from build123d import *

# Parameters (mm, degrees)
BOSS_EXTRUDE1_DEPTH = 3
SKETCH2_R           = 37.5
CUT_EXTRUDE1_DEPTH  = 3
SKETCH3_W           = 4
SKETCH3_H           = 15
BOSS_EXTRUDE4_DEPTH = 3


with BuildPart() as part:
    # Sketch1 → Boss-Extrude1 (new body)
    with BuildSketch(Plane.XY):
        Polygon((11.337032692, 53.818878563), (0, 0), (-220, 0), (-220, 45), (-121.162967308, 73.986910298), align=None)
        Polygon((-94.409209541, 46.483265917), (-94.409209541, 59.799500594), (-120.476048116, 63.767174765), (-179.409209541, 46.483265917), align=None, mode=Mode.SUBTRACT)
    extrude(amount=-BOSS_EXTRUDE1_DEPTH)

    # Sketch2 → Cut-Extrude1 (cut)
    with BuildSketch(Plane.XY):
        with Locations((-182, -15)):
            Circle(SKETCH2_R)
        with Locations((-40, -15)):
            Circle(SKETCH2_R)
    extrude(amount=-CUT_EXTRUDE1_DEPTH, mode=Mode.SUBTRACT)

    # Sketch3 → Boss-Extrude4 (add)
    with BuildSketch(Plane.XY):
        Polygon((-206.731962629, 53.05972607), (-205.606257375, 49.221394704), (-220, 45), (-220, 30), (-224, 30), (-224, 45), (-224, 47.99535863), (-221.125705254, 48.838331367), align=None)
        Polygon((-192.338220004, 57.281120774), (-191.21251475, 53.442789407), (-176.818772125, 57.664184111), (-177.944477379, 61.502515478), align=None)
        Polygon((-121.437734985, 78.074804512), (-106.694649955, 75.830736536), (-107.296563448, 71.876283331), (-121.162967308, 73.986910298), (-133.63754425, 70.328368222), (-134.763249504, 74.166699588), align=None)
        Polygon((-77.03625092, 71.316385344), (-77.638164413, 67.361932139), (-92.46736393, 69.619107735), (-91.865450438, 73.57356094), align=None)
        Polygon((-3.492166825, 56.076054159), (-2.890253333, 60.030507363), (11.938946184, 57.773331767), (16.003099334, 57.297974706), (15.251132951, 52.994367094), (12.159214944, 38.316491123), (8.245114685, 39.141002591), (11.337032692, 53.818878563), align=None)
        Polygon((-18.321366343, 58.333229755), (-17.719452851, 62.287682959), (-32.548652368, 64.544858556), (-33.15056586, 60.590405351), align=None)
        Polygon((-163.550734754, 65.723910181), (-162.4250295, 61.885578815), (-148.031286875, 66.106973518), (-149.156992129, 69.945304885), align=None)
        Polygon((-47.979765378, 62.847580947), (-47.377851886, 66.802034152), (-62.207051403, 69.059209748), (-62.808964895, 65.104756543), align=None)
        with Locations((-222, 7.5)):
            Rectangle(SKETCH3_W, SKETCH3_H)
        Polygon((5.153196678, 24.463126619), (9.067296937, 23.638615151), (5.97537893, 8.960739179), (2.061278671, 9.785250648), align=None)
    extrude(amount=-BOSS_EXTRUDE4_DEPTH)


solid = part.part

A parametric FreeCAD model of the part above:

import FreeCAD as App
import Part
import Sketcher
from FreeCAD import Vector
Q = App.Units.Quantity

doc = App.newDocument("Part")
body = doc.addObject("PartDesign::Body", "Body")

sketch1 = body.newObject("Sketcher::SketchObject", "Sketch")
sketch1.AttachmentSupport = (doc.getObject("XY_Plane"), [""])
sketch1.MapMode = "FlatFace"
sketch1.addGeometry([
    Part.LineSegment(Vector(0, 0, 0), Vector(11.337033, 53.818879, 0)),
    Part.LineSegment(Vector(11.337033, 53.818879, 0), Vector(-121.162967, 73.98691, 0)),
    Part.LineSegment(Vector(-121.162967, 73.98691, 0), Vector(-220, 45, 0)),
    Part.LineSegment(Vector(-220, 45, 0), Vector(-220, 0, 0)),
    Part.LineSegment(Vector(-220, 0, 0), Vector(0, 0, 0)),
    Part.LineSegment(Vector(-94.40921, 46.483266, 0), Vector(-179.40921, 46.483266, 0)),
    Part.LineSegment(Vector(-179.40921, 46.483266, 0), Vector(-120.476048, 63.767175, 0)),
    Part.LineSegment(Vector(-120.476048, 63.767175, 0), Vector(-94.40921, 59.799501, 0)),
    Part.LineSegment(Vector(-94.40921, 59.799501, 0), Vector(-94.40921, 46.483266, 0)),
], False)
sketch1.addConstraint([
    Sketcher.Constraint("Coincident", 0, 2, 1, 1),
    Sketcher.Constraint("Coincident", 1, 2, 2, 1),
    Sketcher.Constraint("Coincident", 2, 2, 3, 1),
    Sketcher.Constraint("Coincident", 3, 2, 4, 1),
    Sketcher.Constraint("Coincident", 4, 2, 0, 1),
    Sketcher.Constraint("Coincident", 5, 2, 6, 1),
    Sketcher.Constraint("Coincident", 6, 2, 7, 1),
    Sketcher.Constraint("Coincident", 7, 2, 8, 1),
    Sketcher.Constraint("Coincident", 8, 2, 5, 1),
    Sketcher.Constraint("Vertical", 3),
    Sketcher.Constraint("Horizontal", 4),
    Sketcher.Constraint("Horizontal", 5),
    Sketcher.Constraint("Vertical", 8),
    Sketcher.Constraint("Coincident", 4, 2, -1, 1),
    Sketcher.Constraint("Parallel", 2, 6),
    Sketcher.Constraint("Parallel", 1, 7),
    Sketcher.Constraint("DistanceX", 4, 1, 4, 2, Q("220 mm")),
    Sketcher.Constraint("DistanceX", 5, 2, 5, 1, Q("85 mm")),
    Sketcher.Constraint("DistanceY", 3, 2, 3, 1, Q("45 mm")),
    Sketcher.Constraint("Distance", 0, Q("55 mm")),
    Sketcher.Constraint("Distance", 2, Q("103 mm")),
    Sketcher.Constraint("DistanceX", 1, 2, 0, 2, Q("132.5 mm")),
    Sketcher.Constraint("DistanceY", -1, 1, 7, 2, Q("59.799501 mm")),
    Sketcher.Constraint("DistanceY", 8, 2, 8, 1, Q("13.316235 mm")),
    Sketcher.Constraint("DistanceY", -1, 1, 0, 2, Q("53.818879 mm")),
    Sketcher.Constraint("DistanceX", 5, 2, -1, 1, Q("179.40921 mm")),
])
pad1 = body.newObject("PartDesign::Pad", "Pad")
pad1.Profile = sketch1
pad1.Length = 3
pad1.Reversed = True

sketch2 = body.newObject("Sketcher::SketchObject", "Sketch001")
sketch2.AttachmentSupport = (doc.getObject("XY_Plane"), [""])
sketch2.MapMode = "FlatFace"
sketch2.addGeometry([
    Part.Circle(Vector(-182, -15, 0), Vector(0, 0, 1), 37.5),
    Part.Circle(Vector(-40, -15, 0), Vector(0, 0, 1), 37.5),
], False)
sketch2.addConstraint([
    Sketcher.Constraint("Equal", 0, 1),
    Sketcher.Constraint("Horizontal", 0, 3, 1, 3),
    Sketcher.Constraint("Diameter", 0, Q("75 mm")),
    Sketcher.Constraint("DistanceX", 0, 3, -1, 1, Q("182 mm")),
    Sketcher.Constraint("DistanceY", 0, 3, -1, 1, Q("15 mm")),
    Sketcher.Constraint("DistanceX", 1, 3, -1, 1, Q("40 mm")),
])
pocket1 = body.newObject("PartDesign::Pocket", "Pocket")
pocket1.Profile = sketch2
pocket1.Length = 3

sketch3 = body.newObject("Sketcher::SketchObject", "Sketch002")
sketch3.AttachmentSupport = (doc.getObject("XY_Plane"), [""])
sketch3.MapMode = "FlatFace"
sketch3.addGeometry([
    Part.LineSegment(Vector(-205.606257, 49.221395, 0), Vector(-206.731963, 53.059726, 0)),
    Part.LineSegment(Vector(-206.731963, 53.059726, 0), Vector(-221.125705, 48.838331, 0)),
    Part.LineSegment(Vector(-221.125705, 48.838331, 0), Vector(-224, 47.995359, 0)),
    Part.LineSegment(Vector(-224, 47.995359, 0), Vector(-224, 30, 0)),
    Part.LineSegment(Vector(-224, 30, 0), Vector(-220, 30, 0)),
    Part.LineSegment(Vector(-220, 30, 0), Vector(-220, 45, 0)),
    Part.LineSegment(Vector(-220, 45, 0), Vector(-205.606257, 49.221395, 0)),
    Part.LineSegment(Vector(-192.33822, 57.281121, 0), Vector(-191.212515, 53.442789, 0)),
    Part.LineSegment(Vector(-191.212515, 53.442789, 0), Vector(-176.818772, 57.664184, 0)),
    Part.LineSegment(Vector(-176.818772, 57.664184, 0), Vector(-177.944477, 61.502515, 0)),
    Part.LineSegment(Vector(-177.944477, 61.502515, 0), Vector(-192.33822, 57.281121, 0)),
    Part.LineSegment(Vector(-106.69465, 75.830737, 0), Vector(-121.437735, 78.074805, 0)),
    Part.LineSegment(Vector(-121.437735, 78.074805, 0), Vector(-134.76325, 74.1667, 0)),
    Part.LineSegment(Vector(-134.76325, 74.1667, 0), Vector(-133.637544, 70.328368, 0)),
    Part.LineSegment(Vector(-133.637544, 70.328368, 0), Vector(-121.162967, 73.98691, 0)),
    Part.LineSegment(Vector(-121.162967, 73.98691, 0), Vector(-107.296563, 71.876283, 0)),
    Part.LineSegment(Vector(-107.296563, 71.876283, 0), Vector(-106.69465, 75.830737, 0)),
    Part.LineSegment(Vector(-77.638164, 67.361932, 0), Vector(-77.036251, 71.316385, 0)),
    Part.LineSegment(Vector(-77.036251, 71.316385, 0), Vector(-91.86545, 73.573561, 0)),
    Part.LineSegment(Vector(-91.86545, 73.573561, 0), Vector(-92.467364, 69.619108, 0)),
    Part.LineSegment(Vector(-92.467364, 69.619108, 0), Vector(-77.638164, 67.361932, 0)),
    Part.LineSegment(Vector(-2.890253, 60.030507, 0), Vector(-3.492167, 56.076054, 0)),
    Part.LineSegment(Vector(-3.492167, 56.076054, 0), Vector(11.337033, 53.818879, 0)),
    Part.LineSegment(Vector(11.337033, 53.818879, 0), Vector(8.245115, 39.141003, 0)),
    Part.LineSegment(Vector(8.245115, 39.141003, 0), Vector(12.159215, 38.316491, 0)),
    Part.LineSegment(Vector(12.159215, 38.316491, 0), Vector(15.251133, 52.994367, 0)),
    Part.LineSegment(Vector(15.251133, 52.994367, 0), Vector(16.003099, 57.297975, 0)),
    Part.LineSegment(Vector(16.003099, 57.297975, 0), Vector(11.938946, 57.773332, 0)),
    Part.LineSegment(Vector(11.938946, 57.773332, 0), Vector(-2.890253, 60.030507, 0)),
    Part.LineSegment(Vector(-18.321366, 58.33323, 0), Vector(-17.719453, 62.287683, 0)),
    Part.LineSegment(Vector(-17.719453, 62.287683, 0), Vector(-32.548652, 64.544859, 0)),
    Part.LineSegment(Vector(-32.548652, 64.544859, 0), Vector(-33.150566, 60.590405, 0)),
    Part.LineSegment(Vector(-33.150566, 60.590405, 0), Vector(-18.321366, 58.33323, 0)),
    Part.LineSegment(Vector(-163.550735, 65.72391, 0), Vector(-162.425029, 61.885579, 0)),
    Part.LineSegment(Vector(-162.425029, 61.885579, 0), Vector(-148.031287, 66.106974, 0)),
    Part.LineSegment(Vector(-148.031287, 66.106974, 0), Vector(-149.156992, 69.945305, 0)),
    Part.LineSegment(Vector(-149.156992, 69.945305, 0), Vector(-163.550735, 65.72391, 0)),
    Part.LineSegment(Vector(-47.979765, 62.847581, 0), Vector(-47.377852, 66.802034, 0)),
    Part.LineSegment(Vector(-47.377852, 66.802034, 0), Vector(-62.207051, 69.05921, 0)),
    Part.LineSegment(Vector(-62.207051, 69.05921, 0), Vector(-62.808965, 65.104757, 0)),
    Part.LineSegment(Vector(-62.808965, 65.104757, 0), Vector(-47.979765, 62.847581, 0)),
    Part.LineSegment(Vector(-224, 15, 0), Vector(-224, 0, 0)),
    Part.LineSegment(Vector(-224, 0, 0), Vector(-220, 0, 0)),
    Part.LineSegment(Vector(-220, 0, 0), Vector(-220, 15, 0)),
    Part.LineSegment(Vector(-220, 15, 0), Vector(-224, 15, 0)),
    Part.LineSegment(Vector(9.067297, 23.638615, 0), Vector(5.153197, 24.463127, 0)),
    Part.LineSegment(Vector(5.153197, 24.463127, 0), Vector(2.061279, 9.785251, 0)),
    Part.LineSegment(Vector(2.061279, 9.785251, 0), Vector(5.975379, 8.960739, 0)),
    Part.LineSegment(Vector(5.975379, 8.960739, 0), Vector(9.067297, 23.638615, 0)),
], False)
sketch3.addConstraint([
    Sketcher.Constraint("Coincident", 0, 2, 1, 1),
    Sketcher.Constraint("Coincident", 1, 2, 2, 1),
    Sketcher.Constraint("Coincident", 2, 2, 3, 1),
    Sketcher.Constraint("Coincident", 3, 2, 4, 1),
    Sketcher.Constraint("Coincident", 4, 2, 5, 1),
    Sketcher.Constraint("Coincident", 5, 2, 6, 1),
    Sketcher.Constraint("Coincident", 6, 2, 0, 1),
    Sketcher.Constraint("Coincident", 7, 2, 8, 1),
    Sketcher.Constraint("Coincident", 8, 2, 9, 1),
    Sketcher.Constraint("Coincident", 9, 2, 10, 1),
    Sketcher.Constraint("Coincident", 10, 2, 7, 1),
    Sketcher.Constraint("Coincident", 11, 2, 12, 1),
    Sketcher.Constraint("Coincident", 12, 2, 13, 1),
    Sketcher.Constraint("Coincident", 13, 2, 14, 1),
    Sketcher.Constraint("Coincident", 14, 2, 15, 1),
    Sketcher.Constraint("Coincident", 15, 2, 16, 1),
    Sketcher.Constraint("Coincident", 16, 2, 11, 1),
    Sketcher.Constraint("Coincident", 17, 2, 18, 1),
    Sketcher.Constraint("Coincident", 18, 2, 19, 1),
    Sketcher.Constraint("Coincident", 19, 2, 20, 1),
    Sketcher.Constraint("Coincident", 20, 2, 17, 1),
    Sketcher.Constraint("Coincident", 21, 2, 22, 1),
    Sketcher.Constraint("Coincident", 22, 2, 23, 1),
    Sketcher.Constraint("Coincident", 23, 2, 24, 1),
    Sketcher.Constraint("Coincident", 24, 2, 25, 1),
    Sketcher.Constraint("Coincident", 25, 2, 26, 1),
    Sketcher.Constraint("Coincident", 26, 2, 27, 1),
    Sketcher.Constraint("Coincident", 27, 2, 28, 1),
    Sketcher.Constraint("Coincident", 28, 2, 21, 1),
    Sketcher.Constraint("Coincident", 29, 2, 30, 1),
    Sketcher.Constraint("Coincident", 30, 2, 31, 1),
    Sketcher.Constraint("Coincident", 31, 2, 32, 1),
    Sketcher.Constraint("Coincident", 32, 2, 29, 1),
    Sketcher.Constraint("Coincident", 33, 2, 34, 1),
    Sketcher.Constraint("Coincident", 34, 2, 35, 1),
    Sketcher.Constraint("Coincident", 35, 2, 36, 1),
    Sketcher.Constraint("Coincident", 36, 2, 33, 1),
    Sketcher.Constraint("Coincident", 37, 2, 38, 1),
    Sketcher.Constraint("Coincident", 38, 2, 39, 1),
    Sketcher.Constraint("Coincident", 39, 2, 40, 1),
    Sketcher.Constraint("Coincident", 40, 2, 37, 1),
    Sketcher.Constraint("Coincident", 41, 2, 42, 1),
    Sketcher.Constraint("Coincident", 42, 2, 43, 1),
    Sketcher.Constraint("Coincident", 43, 2, 44, 1),
    Sketcher.Constraint("Coincident", 44, 2, 41, 1),
    Sketcher.Constraint("Coincident", 45, 2, 46, 1),
    Sketcher.Constraint("Coincident", 46, 2, 47, 1),
    Sketcher.Constraint("Coincident", 47, 2, 48, 1),
    Sketcher.Constraint("Coincident", 48, 2, 45, 1),
    Sketcher.Constraint("Vertical", 3),
    Sketcher.Constraint("Horizontal", 4),
    Sketcher.Constraint("Vertical", 5),
    Sketcher.Constraint("Vertical", 41),
    Sketcher.Constraint("Horizontal", 42),
    Sketcher.Constraint("Vertical", 43),
    Sketcher.Constraint("Horizontal", 44),
    Sketcher.Constraint("PointOnObject", 41, 2, -1),
    Sketcher.Constraint("Perpendicular", 0, 1),
    Sketcher.Constraint("Parallel", 1, 2),
    Sketcher.Constraint("Parallel", 2, 6),
    Sketcher.Constraint("Perpendicular", 6, 7),
    Sketcher.Constraint("Perpendicular", 7, 8),
    Sketcher.Constraint("Perpendicular", 8, 9),
    Sketcher.Constraint("Perpendicular", 9, 10),
    Sketcher.Constraint("Parallel", 10, 12),
    Sketcher.Constraint("Perpendicular", 12, 13),
    Sketcher.Constraint("Perpendicular", 13, 14),
    Sketcher.Constraint("Parallel", 11, 15),
    Sketcher.Constraint("Perpendicular", 15, 16),
    Sketcher.Constraint("Parallel", 16, 17),
    Sketcher.Constraint("Perpendicular", 17, 18),
    Sketcher.Constraint("Perpendicular", 18, 19),
    Sketcher.Constraint("Perpendicular", 19, 20),
    Sketcher.Constraint("Perpendicular", 20, 21),
    Sketcher.Constraint("Perpendicular", 21, 22),
    Sketcher.Constraint("Perpendicular", 23, 24),
    Sketcher.Constraint("Perpendicular", 24, 25),
    Sketcher.Constraint("Parallel", 22, 28),
    Sketcher.Constraint("Perpendicular", 28, 29),
    Sketcher.Constraint("Perpendicular", 29, 30),
    Sketcher.Constraint("Perpendicular", 30, 31),
    Sketcher.Constraint("Perpendicular", 31, 32),
    Sketcher.Constraint("Perpendicular", 14, 33),
    Sketcher.Constraint("Perpendicular", 33, 34),
    Sketcher.Constraint("Perpendicular", 34, 35),
    Sketcher.Constraint("Perpendicular", 35, 36),
    Sketcher.Constraint("Perpendicular", 32, 37),
    Sketcher.Constraint("Perpendicular", 37, 38),
    Sketcher.Constraint("Perpendicular", 38, 39),
    Sketcher.Constraint("Perpendicular", 39, 40),
    Sketcher.Constraint("Perpendicular", 25, 45),
    Sketcher.Constraint("Perpendicular", 45, 46),
    Sketcher.Constraint("Perpendicular", 46, 47),
    Sketcher.Constraint("Perpendicular", 47, 48),
    Sketcher.Constraint("Vertical", 3, 2, 41, 2),
    Sketcher.Constraint("Vertical", 5, 2, 42, 2),
    Sketcher.Constraint("Equal", 5, 41),
    Sketcher.Constraint("Equal", 1, 6),
    Sketcher.Constraint("Equal", 0, 7),
    Sketcher.Constraint("Equal", 6, 8),
    Sketcher.Constraint("Equal", 9, 13),
    Sketcher.Constraint("Equal", 13, 16),
    Sketcher.Constraint("Equal", 16, 17),
    Sketcher.Constraint("Equal", 10, 18),
    Sketcher.Constraint("Equal", 19, 21),
    Sketcher.Constraint("Equal", 20, 22),
    Sketcher.Constraint("Equal", 22, 23),
    Sketcher.Constraint("Equal", 21, 24),
    Sketcher.Constraint("Equal", 23, 25),
    Sketcher.Constraint("Equal", 25, 28),
    Sketcher.Constraint("Equal", 24, 29),
    Sketcher.Constraint("Equal", 28, 30),
    Sketcher.Constraint("Equal", 31, 33),
    Sketcher.Constraint("Equal", 32, 34),
    Sketcher.Constraint("Equal", 35, 37),
    Sketcher.Constraint("Equal", 36, 38),
    Sketcher.Constraint("Equal", 39, 45),
    Sketcher.Constraint("Equal", 40, 46),
    Sketcher.Constraint("DistanceX", 4, 1, 4, 2, Q("4 mm")),
    Sketcher.Constraint("DistanceY", 5, 1, 5, 2, Q("15 mm")),
    Sketcher.Constraint("Distance", 0, Q("4 mm")),
    Sketcher.Constraint("Distance", 1, Q("15 mm")),
    Sketcher.Constraint("Distance", 14, Q("13 mm")),
    Sketcher.Constraint("DistanceX", 2, 2, -1, 1, Q("224 mm")),
    Sketcher.Constraint("DistanceY", -1, 1, 3, 2, Q("30 mm")),
    Sketcher.Constraint("DistanceY", 3, 2, 3, 1, Q("17.995359 mm")),
    Sketcher.Constraint("DistanceY", -1, 1, 12, 2, Q("74.1667 mm")),
    Sketcher.Constraint("DistanceX", -1, 1, 26, 2, Q("16.003099 mm")),
    Sketcher.Constraint("DistanceY", 8, 2, 15, 2, Q("14.212099 mm")),
    Sketcher.Constraint("DistanceX", 12, 2, 16, 2, Q("28.0686 mm")),
    Sketcher.Constraint("DistanceX", 16, 2, 17, 2, Q("29.658399 mm")),
    Sketcher.Constraint("DistanceX", 16, 2, 18, 2, Q("14.8292 mm")),
    Sketcher.Constraint("DistanceX", 23, 2, 24, 2, Q("3.9141 mm")),
    Sketcher.Constraint("DistanceX", 29, 2, 28, 2, Q("14.8292 mm")),
    Sketcher.Constraint("DistanceX", 17, 2, 30, 2, Q("44.487599 mm")),
    Sketcher.Constraint("DistanceX", 37, 2, 30, 2, Q("14.8292 mm")),
    Sketcher.Constraint("Distance", 26, Q("4.368809 mm")),
    Sketcher.Constraint("Distance", 27, Q("4.091858 mm")),
    Sketcher.Constraint("DistanceX", 10, 2, -1, 1, Q("192.33822 mm")),
    Sketcher.Constraint("DistanceY", -1, 1, 18, 2, Q("73.573561 mm")),
    Sketcher.Constraint("DistanceY", -1, 1, 22, 2, Q("53.818879 mm")),
    Sketcher.Constraint("DistanceY", -1, 1, 30, 2, Q("64.544859 mm")),
    Sketcher.Constraint("DistanceX", 33, 2, -1, 1, Q("162.425029 mm")),
    Sketcher.Constraint("DistanceY", -1, 1, 33, 2, Q("61.885579 mm")),
    Sketcher.Constraint("DistanceY", -1, 1, 38, 2, Q("69.05921 mm")),
    Sketcher.Constraint("DistanceX", -1, 1, 46, 2, Q("2.061279 mm")),
    Sketcher.Constraint("DistanceY", -1, 1, 46, 2, Q("9.785251 mm")),
])
pad2 = body.newObject("PartDesign::Pad", "Pad001")
pad2.Profile = sketch3
pad2.Length = 3
pad2.Reversed = True

doc.recompute()
